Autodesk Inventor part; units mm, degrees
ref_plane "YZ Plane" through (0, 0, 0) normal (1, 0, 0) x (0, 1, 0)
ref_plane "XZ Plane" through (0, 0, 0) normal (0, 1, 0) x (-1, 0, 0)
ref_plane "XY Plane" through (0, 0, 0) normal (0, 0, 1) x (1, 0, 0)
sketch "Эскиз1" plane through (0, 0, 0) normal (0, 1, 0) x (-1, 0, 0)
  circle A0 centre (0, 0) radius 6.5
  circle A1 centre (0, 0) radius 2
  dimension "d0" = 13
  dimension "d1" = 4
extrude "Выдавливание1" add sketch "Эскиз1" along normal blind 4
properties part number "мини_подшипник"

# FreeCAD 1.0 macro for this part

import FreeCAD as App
import Part
import Sketcher
from FreeCAD import Vector
Q = App.Units.Quantity

doc = App.newDocument("Part")
params = doc.addObject("Spreadsheet::Sheet", "Params")
for row, (alias, value) in enumerate([
    ("sketch1_diameter", "13 mm"),
    ("sketch1_diameter2", "4 mm"),
    ("pad1_length", "4 mm"),
], start=1):
    params.set(f"A{row}", alias)
    params.set(f"B{row}", "=" + value)
    params.setAlias(f"B{row}", alias)

body = doc.addObject("PartDesign::Body", "Body")

# Sketch on XZ plane
sketch1 = doc.addObject("Sketcher::SketchObject", "Sketch")
body.addObject(sketch1)
sketch1.AttachmentSupport = (doc.XZ_Plane, [""])
sketch1.MapMode = "FlatFace"
sketch1.addGeometry([
    Part.Circle(Vector(0, 0, 0), Vector(0, 0, 1), 6.5),
    Part.Circle(Vector(0, 0, 0), Vector(0, 0, 1), 2),
], False)
sketch1.addConstraint([
    Sketcher.Constraint("Coincident", 0, 3, -1, 1),
    Sketcher.Constraint("Coincident", 1, 3, -1, 1),
    Sketcher.Constraint("Diameter", 0, Q("13 mm")),
    Sketcher.Constraint("Diameter", 1, Q("4 mm")),
])
sketch1.setExpression("Constraints[2]", "Params.sketch1_diameter")
sketch1.setExpression("Constraints[3]", "Params.sketch1_diameter2")
pad1 = doc.addObject("PartDesign::Pad", "Pad")
body.addObject(pad1)
pad1.Profile = sketch1
pad1.setExpression("Length", "Params.pad1_length")
pad1.Reversed = True

doc.recompute()
